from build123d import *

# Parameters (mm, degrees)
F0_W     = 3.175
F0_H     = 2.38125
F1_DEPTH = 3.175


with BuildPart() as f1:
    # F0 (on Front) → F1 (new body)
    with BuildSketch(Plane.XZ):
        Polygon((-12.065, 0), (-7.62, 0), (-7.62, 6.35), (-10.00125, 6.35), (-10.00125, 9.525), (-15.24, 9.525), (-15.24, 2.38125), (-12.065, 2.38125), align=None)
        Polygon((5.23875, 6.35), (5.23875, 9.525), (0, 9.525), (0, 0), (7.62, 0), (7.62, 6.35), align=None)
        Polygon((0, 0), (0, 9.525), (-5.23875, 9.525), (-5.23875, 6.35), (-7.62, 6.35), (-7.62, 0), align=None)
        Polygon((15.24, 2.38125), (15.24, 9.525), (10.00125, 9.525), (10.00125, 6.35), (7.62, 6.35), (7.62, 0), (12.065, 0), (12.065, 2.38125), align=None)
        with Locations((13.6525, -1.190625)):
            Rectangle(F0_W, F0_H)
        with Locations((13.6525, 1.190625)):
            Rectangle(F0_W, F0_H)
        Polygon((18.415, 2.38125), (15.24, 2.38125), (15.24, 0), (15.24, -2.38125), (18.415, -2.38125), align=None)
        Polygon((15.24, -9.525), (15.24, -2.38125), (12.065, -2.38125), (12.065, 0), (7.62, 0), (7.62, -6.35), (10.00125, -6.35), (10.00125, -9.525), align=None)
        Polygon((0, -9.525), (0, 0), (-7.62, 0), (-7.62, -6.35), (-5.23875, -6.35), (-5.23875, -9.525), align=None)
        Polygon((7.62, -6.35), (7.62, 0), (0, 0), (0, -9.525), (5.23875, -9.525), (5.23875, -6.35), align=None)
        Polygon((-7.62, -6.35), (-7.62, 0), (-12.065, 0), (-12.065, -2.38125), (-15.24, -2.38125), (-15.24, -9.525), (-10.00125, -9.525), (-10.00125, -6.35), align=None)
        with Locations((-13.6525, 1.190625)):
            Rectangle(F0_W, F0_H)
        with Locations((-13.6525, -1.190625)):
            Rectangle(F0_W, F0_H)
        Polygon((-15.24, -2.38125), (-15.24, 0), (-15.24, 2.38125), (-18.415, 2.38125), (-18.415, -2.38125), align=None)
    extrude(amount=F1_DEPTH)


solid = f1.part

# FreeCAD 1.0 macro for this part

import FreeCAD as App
import Part
import Sketcher

V = App.Vector
Q = App.Units.Quantity

doc = App.newDocument("Part")
body = doc.addObject("PartDesign::Body", "Body")

sketch1 = body.newObject("Sketcher::SketchObject", "Sketch")
sketch1.AttachmentSupport = (doc.getObject("XZ_Plane"), [""])
sketch1.MapMode = "FlatFace"
sketch1.addGeometry(Part.LineSegment(V(-5.2, -6.3, 0), V(-5.2, -9.5, 0)), False)
sketch1.addGeometry(Part.LineSegment(V(-5.2, -9.5, 0), V(5.2, -9.5, 0)), False)
sketch1.addGeometry(Part.LineSegment(V(5.2, -9.5, 0), V(5.2, -6.3, 0)), False)
sketch1.addGeometry(Part.LineSegment(V(5.2, -6.3, 0), V(10, -6.3, 0)), False)
sketch1.addGeometry(Part.LineSegment(V(10, -6.3, 0), V(10, -9.5, 0)), False)
sketch1.addGeometry(Part.LineSegment(V(10, -9.5, 0), V(15.2, -9.5, 0)), False)
sketch1.addGeometry(Part.LineSegment(V(15.2, -9.5, 0), V(15.2, -2.4, 0)), False)
sketch1.addGeometry(Part.LineSegment(V(15.2, -2.4, 0), V(18.4, -2.4, 0)), False)
sketch1.addGeometry(Part.LineSegment(V(18.4, -2.4, 0), V(18.4, 2.4, 0)), False)
sketch1.addGeometry(Part.LineSegment(V(18.4, 2.4, 0), V(15.2, 2.4, 0)), False)
sketch1.addGeometry(Part.LineSegment(V(15.2, 2.4, 0), V(15.2, 9.5, 0)), False)
sketch1.addGeometry(Part.LineSegment(V(15.2, 9.5, 0), V(10, 9.5, 0)), False)
sketch1.addGeometry(Part.LineSegment(V(10, 9.5, 0), V(10, 6.3, 0)), False)
sketch1.addGeometry(Part.LineSegment(V(10, 6.3, 0), V(5.2, 6.3, 0)), False)
sketch1.addGeometry(Part.LineSegment(V(5.2, 6.3, 0), V(5.2, 9.5, 0)), False)
sketch1.addGeometry(Part.LineSegment(V(5.2, 9.5, 0), V(-5.2, 9.5, 0)), False)
sketch1.addGeometry(Part.LineSegment(V(-5.2, 9.5, 0), V(-5.2, 6.3, 0)), False)
sketch1.addGeometry(Part.LineSegment(V(-5.2, 6.3, 0), V(-10, 6.3, 0)), False)
sketch1.addGeometry(Part.LineSegment(V(-10, 6.3, 0), V(-10, 9.5, 0)), False)
sketch1.addGeometry(Part.LineSegment(V(-10, 9.5, 0), V(-15.2, 9.5, 0)), False)
sketch1.addGeometry(Part.LineSegment(V(-15.2, 9.5, 0), V(-15.2, 2.4, 0)), False)
sketch1.addGeometry(Part.LineSegment(V(-15.2, 2.4, 0), V(-18.4, 2.4, 0)), False)
sketch1.addGeometry(Part.LineSegment(V(-18.4, 2.4, 0), V(-18.4, -2.4, 0)), False)
sketch1.addGeometry(Part.LineSegment(V(-18.4, -2.4, 0), V(-15.2, -2.4, 0)), False)
sketch1.addGeometry(Part.LineSegment(V(-15.2, -2.4, 0), V(-15.2, -9.5, 0)), False)
sketch1.addGeometry(Part.LineSegment(V(-15.2, -9.5, 0), V(-10, -9.5, 0)), False)
sketch1.addGeometry(Part.LineSegment(V(-10, -9.5, 0), V(-10, -6.3, 0)), False)
sketch1.addGeometry(Part.LineSegment(V(-10, -6.3, 0), V(-5.2, -6.3, 0)), False)
sketch1.addConstraint(Sketcher.Constraint("Coincident", 0, 2, 1, 1))
sketch1.addConstraint(Sketcher.Constraint("Coincident", 1, 2, 2, 1))
sketch1.addConstraint(Sketcher.Constraint("Coincident", 2, 2, 3, 1))
sketch1.addConstraint(Sketcher.Constraint("Coincident", 3, 2, 4, 1))
sketch1.addConstraint(Sketcher.Constraint("Coincident", 4, 2, 5, 1))
sketch1.addConstraint(Sketcher.Constraint("Coincident", 5, 2, 6, 1))
sketch1.addConstraint(Sketcher.Constraint("Coincident", 6, 2, 7, 1))
sketch1.addConstraint(Sketcher.Constraint("Coincident", 7, 2, 8, 1))
sketch1.addConstraint(Sketcher.Constraint("Coincident", 8, 2, 9, 1))
sketch1.addConstraint(Sketcher.Constraint("Coincident", 9, 2, 10, 1))
sketch1.addConstraint(Sketcher.Constraint("Coincident", 10, 2, 11, 1))
sketch1.addConstraint(Sketcher.Constraint("Coincident", 11, 2, 12, 1))
sketch1.addConstraint(Sketcher.Constraint("Coincident", 12, 2, 13, 1))
sketch1.addConstraint(Sketcher.Constraint("Coincident", 13, 2, 14, 1))
sketch1.addConstraint(Sketcher.Constraint("Coincident", 14, 2, 15, 1))
sketch1.addConstraint(Sketcher.Constraint("Coincident", 15, 2, 16, 1))
sketch1.addConstraint(Sketcher.Constraint("Coincident", 16, 2, 17, 1))
sketch1.addConstraint(Sketcher.Constraint("Coincident", 17, 2, 18, 1))
sketch1.addConstraint(Sketcher.Constraint("Coincident", 18, 2, 19, 1))
sketch1.addConstraint(Sketcher.Constraint("Coincident", 19, 2, 20, 1))
sketch1.addConstraint(Sketcher.Constraint("Coincident", 20, 2, 21, 1))
sketch1.addConstraint(Sketcher.Constraint("Coincident", 21, 2, 22, 1))
sketch1.addConstraint(Sketcher.Constraint("Coincident", 22, 2, 23, 1))
sketch1.addConstraint(Sketcher.Constraint("Coincident", 23, 2, 24, 1))
sketch1.addConstraint(Sketcher.Constraint("Coincident", 24, 2, 25, 1))
sketch1.addConstraint(Sketcher.Constraint("Coincident", 25, 2, 26, 1))
sketch1.addConstraint(Sketcher.Constraint("Coincident", 26, 2, 27, 1))
sketch1.addConstraint(Sketcher.Constraint("Coincident", 27, 2, 0, 1))
sketch1.addConstraint(Sketcher.Constraint("Vertical", 0))
sketch1.addConstraint(Sketcher.Constraint("Horizontal", 1))
sketch1.addConstraint(Sketcher.Constraint("Vertical", 2))
sketch1.addConstraint(Sketcher.Constraint("Horizontal", 3))
sketch1.addConstraint(Sketcher.Constraint("Vertical", 4))
sketch1.addConstraint(Sketcher.Constraint("Horizontal", 5))
sketch1.addConstraint(Sketcher.Constraint("Vertical", 6))
sketch1.addConstraint(Sketcher.Constraint("Horizontal", 7))
sketch1.addConstraint(Sketcher.Constraint("Vertical", 8))
sketch1.addConstraint(Sketcher.Constraint("Horizontal", 9))
sketch1.addConstraint(Sketcher.Constraint("Vertical", 10))
sketch1.addConstraint(Sketcher.Constraint("Horizontal", 11))
sketch1.addConstraint(Sketcher.Constraint("Vertical", 12))
sketch1.addConstraint(Sketcher.Constraint("Horizontal", 13))
sketch1.addConstraint(Sketcher.Constraint("Vertical", 14))
sketch1.addConstraint(Sketcher.Constraint("Horizontal", 15))
sketch1.addConstraint(Sketcher.Constraint("Vertical", 16))
sketch1.addConstraint(Sketcher.Constraint("Horizontal", 17))
sketch1.addConstraint(Sketcher.Constraint("Vertical", 18))
sketch1.addConstraint(Sketcher.Constraint("Horizontal", 19))
sketch1.addConstraint(Sketcher.Constraint("Vertical", 20))
sketch1.addConstraint(Sketcher.Constraint("Horizontal", 21))
sketch1.addConstraint(Sketcher.Constraint("Vertical", 22))
sketch1.addConstraint(Sketcher.Constraint("Horizontal", 23))
sketch1.addConstraint(Sketcher.Constraint("Vertical", 24))
sketch1.addConstraint(Sketcher.Constraint("Horizontal", 25))
sketch1.addConstraint(Sketcher.Constraint("Vertical", 26))
sketch1.addConstraint(Sketcher.Constraint("Horizontal", 27))
sketch1.addConstraint(Sketcher.Constraint("Symmetric", 0, 2, 14, 2, -1, 1))
sketch1.addConstraint(Sketcher.Constraint("Symmetric", 2, 2, 16, 2, -1, 1))
sketch1.addConstraint(Sketcher.Constraint("Symmetric", 4, 2, 18, 2, -1, 1))
sketch1.addConstraint(Sketcher.Constraint("Symmetric", 6, 2, 20, 2, -1, 1))
sketch1.addConstraint(Sketcher.Constraint("Symmetric", 8, 2, 22, 2, -1, 1))
sketch1.addConstraint(Sketcher.Constraint("Symmetric", 10, 2, 24, 2, -1, 1))
sketch1.addConstraint(Sketcher.Constraint("Symmetric", 12, 2, 26, 2, -1, 1))
sketch1.addConstraint(Sketcher.Constraint("Symmetric", 13, 2, 16, 2, -2))
sketch1.addConstraint(Sketcher.Constraint("Symmetric", 11, 2, 18, 2, -2))
sketch1.addConstraint(Sketcher.Constraint("Symmetric", 9, 2, 20, 2, -2))
sketch1.addConstraint(Sketcher.Constraint("Horizontal", 1, 2, 4, 2))
sketch1.addConstraint(Sketcher.Constraint("Equal", 23, 0))
sketch1.addConstraint(Sketcher.Constraint("Equal", 27, 8))
sketch1.addConstraint(Sketcher.Constraint("DistanceX", -1, 1, 5, 2, Q("0.6 in")))
sketch1.addConstraint(Sketcher.Constraint("DistanceX", 0, 2, 3, 2, Q("0.6 in")))
sketch1.addConstraint(Sketcher.Constraint("DistanceY", 2, 2, 13, 2, Q("0.5 in")))
sketch1.addConstraint(Sketcher.Constraint("DistanceX", 3, 1, 3, 2, Q("0.1875 in")))
sketch1.addConstraint(Sketcher.Constraint("DistanceX", 7, 1, 7, 2, Q("0.125 in")))
pad1 = body.newObject("PartDesign::Pad", "Pad")
pad1.Profile = sketch1
pad1.Length = Q("0.125 in")

doc.recompute()
